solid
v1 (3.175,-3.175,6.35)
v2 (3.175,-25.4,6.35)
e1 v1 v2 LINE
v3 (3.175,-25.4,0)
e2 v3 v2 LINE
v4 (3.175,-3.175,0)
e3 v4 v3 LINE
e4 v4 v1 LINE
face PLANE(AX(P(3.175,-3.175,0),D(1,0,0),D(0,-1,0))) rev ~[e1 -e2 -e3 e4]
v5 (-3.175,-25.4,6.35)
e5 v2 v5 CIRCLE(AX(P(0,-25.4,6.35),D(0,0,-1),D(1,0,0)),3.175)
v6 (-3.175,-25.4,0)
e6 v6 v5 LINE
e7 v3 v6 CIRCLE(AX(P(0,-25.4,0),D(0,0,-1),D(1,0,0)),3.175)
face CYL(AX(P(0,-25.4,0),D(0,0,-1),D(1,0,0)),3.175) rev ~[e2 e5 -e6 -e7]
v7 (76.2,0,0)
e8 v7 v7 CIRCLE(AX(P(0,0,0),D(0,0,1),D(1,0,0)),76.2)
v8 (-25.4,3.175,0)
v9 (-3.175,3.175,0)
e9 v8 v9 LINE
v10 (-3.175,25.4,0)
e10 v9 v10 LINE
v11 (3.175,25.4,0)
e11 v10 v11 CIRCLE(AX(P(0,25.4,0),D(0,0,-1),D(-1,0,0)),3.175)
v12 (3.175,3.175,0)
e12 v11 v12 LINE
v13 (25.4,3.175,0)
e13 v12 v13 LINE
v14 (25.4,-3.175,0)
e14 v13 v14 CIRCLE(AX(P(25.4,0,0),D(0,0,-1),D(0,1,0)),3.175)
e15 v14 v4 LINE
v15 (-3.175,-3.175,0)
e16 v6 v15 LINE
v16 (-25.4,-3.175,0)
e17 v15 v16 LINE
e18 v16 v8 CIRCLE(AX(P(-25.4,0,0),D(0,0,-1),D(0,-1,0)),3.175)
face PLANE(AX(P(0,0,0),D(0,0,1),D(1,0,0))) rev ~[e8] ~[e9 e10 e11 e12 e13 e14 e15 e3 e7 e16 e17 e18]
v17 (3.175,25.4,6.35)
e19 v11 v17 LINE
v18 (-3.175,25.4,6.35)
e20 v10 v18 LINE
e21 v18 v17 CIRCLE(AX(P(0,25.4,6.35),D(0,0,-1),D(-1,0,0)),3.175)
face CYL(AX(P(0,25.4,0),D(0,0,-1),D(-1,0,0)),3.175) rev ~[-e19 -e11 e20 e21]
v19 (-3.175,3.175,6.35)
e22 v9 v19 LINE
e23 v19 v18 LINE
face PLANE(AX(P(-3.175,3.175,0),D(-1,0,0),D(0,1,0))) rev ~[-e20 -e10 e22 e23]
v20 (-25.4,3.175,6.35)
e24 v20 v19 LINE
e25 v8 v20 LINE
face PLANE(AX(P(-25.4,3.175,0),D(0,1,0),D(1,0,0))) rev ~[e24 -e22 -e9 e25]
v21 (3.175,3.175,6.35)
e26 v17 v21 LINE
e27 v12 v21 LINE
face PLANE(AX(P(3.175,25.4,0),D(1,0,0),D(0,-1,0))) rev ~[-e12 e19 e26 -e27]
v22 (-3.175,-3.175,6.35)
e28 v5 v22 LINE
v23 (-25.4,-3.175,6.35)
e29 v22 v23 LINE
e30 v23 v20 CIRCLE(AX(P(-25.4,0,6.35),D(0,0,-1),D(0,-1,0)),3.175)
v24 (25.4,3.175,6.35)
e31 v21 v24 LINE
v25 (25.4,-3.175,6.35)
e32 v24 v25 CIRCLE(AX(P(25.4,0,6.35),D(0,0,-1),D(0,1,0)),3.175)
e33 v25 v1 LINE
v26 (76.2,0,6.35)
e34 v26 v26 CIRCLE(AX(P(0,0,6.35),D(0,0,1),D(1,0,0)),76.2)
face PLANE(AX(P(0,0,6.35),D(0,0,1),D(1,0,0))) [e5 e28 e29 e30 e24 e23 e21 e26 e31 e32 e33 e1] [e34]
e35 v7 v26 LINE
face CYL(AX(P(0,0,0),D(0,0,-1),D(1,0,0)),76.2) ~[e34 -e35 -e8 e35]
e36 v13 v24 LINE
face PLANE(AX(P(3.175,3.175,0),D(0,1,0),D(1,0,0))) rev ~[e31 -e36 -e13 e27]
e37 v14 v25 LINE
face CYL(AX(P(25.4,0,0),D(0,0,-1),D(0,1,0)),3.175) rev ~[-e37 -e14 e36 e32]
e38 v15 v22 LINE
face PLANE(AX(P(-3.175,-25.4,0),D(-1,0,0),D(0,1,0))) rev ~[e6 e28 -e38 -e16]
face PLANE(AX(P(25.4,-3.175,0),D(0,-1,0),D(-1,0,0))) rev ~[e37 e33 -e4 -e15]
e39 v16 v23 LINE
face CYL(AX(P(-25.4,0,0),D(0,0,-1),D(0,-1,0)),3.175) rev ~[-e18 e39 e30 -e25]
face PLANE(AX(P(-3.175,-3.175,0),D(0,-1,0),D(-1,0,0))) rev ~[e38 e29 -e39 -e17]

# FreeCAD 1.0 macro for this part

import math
import FreeCAD as App
import Part
import Sketcher

V = App.Vector
Q = App.Units.Quantity

doc = App.newDocument("Part")
body = doc.addObject("PartDesign::Body", "Body")

# Sketch on XY plane
sketch1 = doc.addObject("Sketcher::SketchObject", "Sketch")
body.addObject(sketch1)
sketch1.AttachmentSupport = (doc.XY_Plane, [""])
sketch1.MapMode = "FlatFace"
sketch1.addGeometry(Part.Circle(V(0, 0, 0), V(0, 0, 1), 76.2), False)
sketch1.addGeometry(Part.ArcOfCircle(Part.Circle(V(0, -25.4, 0), V(0, 0, 1), 3.175), math.radians(180), math.radians(360)), False)
sketch1.addGeometry(Part.LineSegment(V(-3.175, -25.4, 0), V(-3.175, -3.175, 0)), False)
sketch1.addGeometry(Part.LineSegment(V(-3.175, -3.175, 0), V(-25.4, -3.175, 0)), False)
sketch1.addGeometry(Part.ArcOfCircle(Part.Circle(V(-25.4, 0, 0), V(0, 0, 1), 3.175), math.radians(90), math.radians(270)), False)
sketch1.addGeometry(Part.LineSegment(V(-25.4, 3.175, 0), V(-3.175, 3.175, 0)), False)
sketch1.addGeometry(Part.LineSegment(V(-3.175, 3.175, 0), V(-3.175, 25.4, 0)), False)
sketch1.addGeometry(Part.ArcOfCircle(Part.Circle(V(0, 25.4, 0), V(0, 0, 1), 3.175), math.radians(0), math.radians(180)), False)
sketch1.addGeometry(Part.LineSegment(V(3.175, 25.4, 0), V(3.175, 3.175, 0)), False)
sketch1.addGeometry(Part.LineSegment(V(3.175, 3.175, 0), V(25.4, 3.175, 0)), False)
sketch1.addGeometry(Part.ArcOfCircle(Part.Circle(V(25.4, 0, 0), V(0, 0, 1), 3.175), math.radians(-90), math.radians(90)), False)
sketch1.addGeometry(Part.LineSegment(V(25.4, -3.175, 0), V(3.175, -3.175, 0)), False)
sketch1.addGeometry(Part.LineSegment(V(3.175, -3.175, 0), V(3.175, -25.4, 0)), False)
sketch1.addConstraint(Sketcher.Constraint("Tangent", 1, 1, 2, 1))
sketch1.addConstraint(Sketcher.Constraint("Coincident", 2, 2, 3, 1))
sketch1.addConstraint(Sketcher.Constraint("Tangent", 3, 2, 4, 2))
sketch1.addConstraint(Sketcher.Constraint("Tangent", 4, 1, 5, 1))
sketch1.addConstraint(Sketcher.Constraint("Coincident", 5, 2, 6, 1))
sketch1.addConstraint(Sketcher.Constraint("Tangent", 6, 2, 7, 2))
sketch1.addConstraint(Sketcher.Constraint("Tangent", 7, 1, 8, 1))
sketch1.addConstraint(Sketcher.Constraint("Coincident", 8, 2, 9, 1))
sketch1.addConstraint(Sketcher.Constraint("Tangent", 9, 2, 10, 2))
sketch1.addConstraint(Sketcher.Constraint("Tangent", 10, 1, 11, 1))
sketch1.addConstraint(Sketcher.Constraint("Coincident", 11, 2, 12, 1))
sketch1.addConstraint(Sketcher.Constraint("Tangent", 12, 2, 1, 2))
sketch1.addConstraint(Sketcher.Constraint("Vertical", 2))
sketch1.addConstraint(Sketcher.Constraint("Horizontal", 3))
sketch1.addConstraint(Sketcher.Constraint("Horizontal", 5))
sketch1.addConstraint(Sketcher.Constraint("Vertical", 6))
sketch1.addConstraint(Sketcher.Constraint("Vertical", 8))
sketch1.addConstraint(Sketcher.Constraint("Horizontal", 9))
sketch1.addConstraint(Sketcher.Constraint("Horizontal", 11))
sketch1.addConstraint(Sketcher.Constraint("Vertical", 12))
sketch1.addConstraint(Sketcher.Constraint("Coincident", 0, 3, -1, 1))
sketch1.addConstraint(Sketcher.Constraint("Equal", 1, 4))
sketch1.addConstraint(Sketcher.Constraint("Equal", 4, 7))
sketch1.addConstraint(Sketcher.Constraint("Equal", 7, 10))
sketch1.addConstraint(Sketcher.Constraint("Symmetric", 1, 3, 7, 3, -1, 1))
sketch1.addConstraint(Sketcher.Constraint("Symmetric", 4, 3, 10, 3, -1, 1))
sketch1.addConstraint(Sketcher.Constraint("Symmetric", 5, 2, 8, 2, -2))
sketch1.addConstraint(Sketcher.Constraint("Equal", 11, 2))
sketch1.addConstraint(Sketcher.Constraint("Diameter", 0, Q("6 in")))
sketch1.addConstraint(Sketcher.Constraint("DistanceY", 1, 3, -1, 1, Q("1 in")))
sketch1.addConstraint(Sketcher.Constraint("Radius", 1, Q("0.125 in")))
pad1 = doc.addObject("PartDesign::Pad", "Pad")
body.addObject(pad1)
pad1.Profile = sketch1
pad1.Length = Q("0.25 in")

doc.recompute()
